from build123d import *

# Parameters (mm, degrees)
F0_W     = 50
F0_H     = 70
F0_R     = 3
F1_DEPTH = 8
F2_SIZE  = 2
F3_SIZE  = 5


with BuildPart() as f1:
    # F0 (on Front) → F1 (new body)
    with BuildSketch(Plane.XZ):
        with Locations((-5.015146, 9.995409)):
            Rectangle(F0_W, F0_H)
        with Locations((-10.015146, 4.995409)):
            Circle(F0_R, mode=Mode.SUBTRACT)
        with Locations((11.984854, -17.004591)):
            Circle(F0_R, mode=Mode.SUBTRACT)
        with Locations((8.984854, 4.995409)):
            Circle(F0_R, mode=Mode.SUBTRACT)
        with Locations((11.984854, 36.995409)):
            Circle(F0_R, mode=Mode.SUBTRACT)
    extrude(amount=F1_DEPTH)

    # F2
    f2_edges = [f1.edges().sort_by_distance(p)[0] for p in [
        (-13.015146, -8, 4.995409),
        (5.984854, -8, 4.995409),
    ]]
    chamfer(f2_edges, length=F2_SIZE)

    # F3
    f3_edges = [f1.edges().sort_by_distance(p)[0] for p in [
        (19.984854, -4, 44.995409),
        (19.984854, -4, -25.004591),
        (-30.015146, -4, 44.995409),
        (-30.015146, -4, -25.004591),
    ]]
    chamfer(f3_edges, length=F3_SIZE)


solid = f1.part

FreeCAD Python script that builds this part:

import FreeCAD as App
import Part
import Sketcher


def edges_at(feature, points):
    """Names of the edges that pass closest to the given points."""
    edges = feature.Shape.Edges
    near = lambda p: min(range(len(edges)), key=lambda i: edges[i].distToShape(Part.Vertex(*p))[0])
    return sorted({f"Edge{near(p) + 1}" for p in points})


def add_polygon(sketch, points):
    """Adds a closed chain of lines whose ends are joined by coincident constraints."""
    first, n = sketch.GeometryCount, len(points)
    for a, b in zip(points, points[1:] + points[:1]):
        sketch.addGeometry(Part.LineSegment(App.Vector(*a, 0), App.Vector(*b, 0)), False)
    for i in range(n):
        sketch.addConstraint(Sketcher.Constraint("Coincident", first + i, 2, first + (i + 1) % n, 1))

doc = App.newDocument("Part")
params = doc.addObject("Spreadsheet::Sheet", "Params")
for row, (alias, value) in enumerate([
    ("sketch1_diameter", "6 mm"),
    ("sketch1_width", "50 mm"),
    ("sketch1_height", "70 mm"),
    ("pad1_length", "8 mm"),
    ("chamfer_size", "2 mm"),
    ("chamfer2_size", "5 mm"),
], start=1):
    params.set(f"A{row}", alias)
    params.set(f"B{row}", "=" + value)
    params.setAlias(f"B{row}", alias)

body = doc.addObject("PartDesign::Body", "Body")

sketch1 = body.newObject("Sketcher::SketchObject", "Sketch")
sketch1.AttachmentSupport = (doc.getObject("XZ_Plane"), [""])
sketch1.MapMode = "FlatFace"
add_polygon(sketch1, [(-30, 45), (-30, -25), (20, -25), (20, 45)])
sketch1.addGeometry(Part.Circle(App.Vector(-10, 5, 0), App.Vector(0, 0, 1), 3), False)
sketch1.addGeometry(Part.Circle(App.Vector(12, -17, 0), App.Vector(0, 0, 1), 3), False)
sketch1.addGeometry(Part.Circle(App.Vector(9, 5, 0), App.Vector(0, 0, 1), 3), False)
sketch1.addGeometry(Part.Circle(App.Vector(12, 37, 0), App.Vector(0, 0, 1), 3), False)
sketch1.addConstraint([
    Sketcher.Constraint("Vertical", 0),
    Sketcher.Constraint("Horizontal", 1),
    Sketcher.Constraint("Vertical", 2),
    Sketcher.Constraint("Horizontal", 3),
    Sketcher.Constraint("Equal", 4, 5),
    Sketcher.Constraint("Equal", 5, 6),
    Sketcher.Constraint("Equal", 6, 7),
    Sketcher.Constraint("Horizontal", 4, 3, 6, 3),
    Sketcher.Constraint("Vertical", 5, 3, 7, 3),
    Sketcher.Constraint("Diameter", 4, 6.0),
    Sketcher.Constraint("DistanceX", 1, 1, 1, 2, 50.0),
    Sketcher.Constraint("DistanceY", 0, 2, 0, 1, 70.0),
    Sketcher.Constraint("DistanceX", 4, 3, 5, 3, 22.0),
    Sketcher.Constraint("DistanceY", 5, 3, 4, 3, 22.0),
    Sketcher.Constraint("DistanceX", 4, 3, 6, 3, 19.0),
    Sketcher.Constraint("DistanceY", 6, 3, 7, 3, 32.0),
    Sketcher.Constraint("DistanceX", 0, 2, 4, 3, 20.0),
    Sketcher.Constraint("DistanceY", 0, 2, 4, 3, 30.0),
    Sketcher.Constraint("DistanceY", -1, 1, 4, 3, 4.995409),
    Sketcher.Constraint("DistanceX", 4, 3, -1, 1, 10.015146),
])
sketch1.setExpression("Constraints[13]", "Params.sketch1_diameter")
sketch1.setExpression("Constraints[14]", "Params.sketch1_width")
sketch1.setExpression("Constraints[15]", "Params.sketch1_height")
pad1 = body.newObject("PartDesign::Pad", "Pad")
pad1.Profile = sketch1
pad1.setExpression("Length", "Params.pad1_length")
doc.recompute()

chamfer = body.newObject("PartDesign::Chamfer", "Chamfer")
chamfer.Base = (pad1, edges_at(pad1, [(-13.015, -8, 4.995), (5.985, -8, 4.995)]))
chamfer.setExpression("Size", "Params.chamfer_size")
doc.recompute()

chamfer2 = body.newObject("PartDesign::Chamfer", "Chamfer001")
chamfer2.Base = (chamfer, edges_at(chamfer, [
    (19.985, -4, 44.995),
    (19.985, -4, -25.005),
    (-30.015, -4, 44.995),
    (-30.015, -4, -25.005),
]))
chamfer2.setExpression("Size", "Params.chamfer2_size")

doc.recompute()
